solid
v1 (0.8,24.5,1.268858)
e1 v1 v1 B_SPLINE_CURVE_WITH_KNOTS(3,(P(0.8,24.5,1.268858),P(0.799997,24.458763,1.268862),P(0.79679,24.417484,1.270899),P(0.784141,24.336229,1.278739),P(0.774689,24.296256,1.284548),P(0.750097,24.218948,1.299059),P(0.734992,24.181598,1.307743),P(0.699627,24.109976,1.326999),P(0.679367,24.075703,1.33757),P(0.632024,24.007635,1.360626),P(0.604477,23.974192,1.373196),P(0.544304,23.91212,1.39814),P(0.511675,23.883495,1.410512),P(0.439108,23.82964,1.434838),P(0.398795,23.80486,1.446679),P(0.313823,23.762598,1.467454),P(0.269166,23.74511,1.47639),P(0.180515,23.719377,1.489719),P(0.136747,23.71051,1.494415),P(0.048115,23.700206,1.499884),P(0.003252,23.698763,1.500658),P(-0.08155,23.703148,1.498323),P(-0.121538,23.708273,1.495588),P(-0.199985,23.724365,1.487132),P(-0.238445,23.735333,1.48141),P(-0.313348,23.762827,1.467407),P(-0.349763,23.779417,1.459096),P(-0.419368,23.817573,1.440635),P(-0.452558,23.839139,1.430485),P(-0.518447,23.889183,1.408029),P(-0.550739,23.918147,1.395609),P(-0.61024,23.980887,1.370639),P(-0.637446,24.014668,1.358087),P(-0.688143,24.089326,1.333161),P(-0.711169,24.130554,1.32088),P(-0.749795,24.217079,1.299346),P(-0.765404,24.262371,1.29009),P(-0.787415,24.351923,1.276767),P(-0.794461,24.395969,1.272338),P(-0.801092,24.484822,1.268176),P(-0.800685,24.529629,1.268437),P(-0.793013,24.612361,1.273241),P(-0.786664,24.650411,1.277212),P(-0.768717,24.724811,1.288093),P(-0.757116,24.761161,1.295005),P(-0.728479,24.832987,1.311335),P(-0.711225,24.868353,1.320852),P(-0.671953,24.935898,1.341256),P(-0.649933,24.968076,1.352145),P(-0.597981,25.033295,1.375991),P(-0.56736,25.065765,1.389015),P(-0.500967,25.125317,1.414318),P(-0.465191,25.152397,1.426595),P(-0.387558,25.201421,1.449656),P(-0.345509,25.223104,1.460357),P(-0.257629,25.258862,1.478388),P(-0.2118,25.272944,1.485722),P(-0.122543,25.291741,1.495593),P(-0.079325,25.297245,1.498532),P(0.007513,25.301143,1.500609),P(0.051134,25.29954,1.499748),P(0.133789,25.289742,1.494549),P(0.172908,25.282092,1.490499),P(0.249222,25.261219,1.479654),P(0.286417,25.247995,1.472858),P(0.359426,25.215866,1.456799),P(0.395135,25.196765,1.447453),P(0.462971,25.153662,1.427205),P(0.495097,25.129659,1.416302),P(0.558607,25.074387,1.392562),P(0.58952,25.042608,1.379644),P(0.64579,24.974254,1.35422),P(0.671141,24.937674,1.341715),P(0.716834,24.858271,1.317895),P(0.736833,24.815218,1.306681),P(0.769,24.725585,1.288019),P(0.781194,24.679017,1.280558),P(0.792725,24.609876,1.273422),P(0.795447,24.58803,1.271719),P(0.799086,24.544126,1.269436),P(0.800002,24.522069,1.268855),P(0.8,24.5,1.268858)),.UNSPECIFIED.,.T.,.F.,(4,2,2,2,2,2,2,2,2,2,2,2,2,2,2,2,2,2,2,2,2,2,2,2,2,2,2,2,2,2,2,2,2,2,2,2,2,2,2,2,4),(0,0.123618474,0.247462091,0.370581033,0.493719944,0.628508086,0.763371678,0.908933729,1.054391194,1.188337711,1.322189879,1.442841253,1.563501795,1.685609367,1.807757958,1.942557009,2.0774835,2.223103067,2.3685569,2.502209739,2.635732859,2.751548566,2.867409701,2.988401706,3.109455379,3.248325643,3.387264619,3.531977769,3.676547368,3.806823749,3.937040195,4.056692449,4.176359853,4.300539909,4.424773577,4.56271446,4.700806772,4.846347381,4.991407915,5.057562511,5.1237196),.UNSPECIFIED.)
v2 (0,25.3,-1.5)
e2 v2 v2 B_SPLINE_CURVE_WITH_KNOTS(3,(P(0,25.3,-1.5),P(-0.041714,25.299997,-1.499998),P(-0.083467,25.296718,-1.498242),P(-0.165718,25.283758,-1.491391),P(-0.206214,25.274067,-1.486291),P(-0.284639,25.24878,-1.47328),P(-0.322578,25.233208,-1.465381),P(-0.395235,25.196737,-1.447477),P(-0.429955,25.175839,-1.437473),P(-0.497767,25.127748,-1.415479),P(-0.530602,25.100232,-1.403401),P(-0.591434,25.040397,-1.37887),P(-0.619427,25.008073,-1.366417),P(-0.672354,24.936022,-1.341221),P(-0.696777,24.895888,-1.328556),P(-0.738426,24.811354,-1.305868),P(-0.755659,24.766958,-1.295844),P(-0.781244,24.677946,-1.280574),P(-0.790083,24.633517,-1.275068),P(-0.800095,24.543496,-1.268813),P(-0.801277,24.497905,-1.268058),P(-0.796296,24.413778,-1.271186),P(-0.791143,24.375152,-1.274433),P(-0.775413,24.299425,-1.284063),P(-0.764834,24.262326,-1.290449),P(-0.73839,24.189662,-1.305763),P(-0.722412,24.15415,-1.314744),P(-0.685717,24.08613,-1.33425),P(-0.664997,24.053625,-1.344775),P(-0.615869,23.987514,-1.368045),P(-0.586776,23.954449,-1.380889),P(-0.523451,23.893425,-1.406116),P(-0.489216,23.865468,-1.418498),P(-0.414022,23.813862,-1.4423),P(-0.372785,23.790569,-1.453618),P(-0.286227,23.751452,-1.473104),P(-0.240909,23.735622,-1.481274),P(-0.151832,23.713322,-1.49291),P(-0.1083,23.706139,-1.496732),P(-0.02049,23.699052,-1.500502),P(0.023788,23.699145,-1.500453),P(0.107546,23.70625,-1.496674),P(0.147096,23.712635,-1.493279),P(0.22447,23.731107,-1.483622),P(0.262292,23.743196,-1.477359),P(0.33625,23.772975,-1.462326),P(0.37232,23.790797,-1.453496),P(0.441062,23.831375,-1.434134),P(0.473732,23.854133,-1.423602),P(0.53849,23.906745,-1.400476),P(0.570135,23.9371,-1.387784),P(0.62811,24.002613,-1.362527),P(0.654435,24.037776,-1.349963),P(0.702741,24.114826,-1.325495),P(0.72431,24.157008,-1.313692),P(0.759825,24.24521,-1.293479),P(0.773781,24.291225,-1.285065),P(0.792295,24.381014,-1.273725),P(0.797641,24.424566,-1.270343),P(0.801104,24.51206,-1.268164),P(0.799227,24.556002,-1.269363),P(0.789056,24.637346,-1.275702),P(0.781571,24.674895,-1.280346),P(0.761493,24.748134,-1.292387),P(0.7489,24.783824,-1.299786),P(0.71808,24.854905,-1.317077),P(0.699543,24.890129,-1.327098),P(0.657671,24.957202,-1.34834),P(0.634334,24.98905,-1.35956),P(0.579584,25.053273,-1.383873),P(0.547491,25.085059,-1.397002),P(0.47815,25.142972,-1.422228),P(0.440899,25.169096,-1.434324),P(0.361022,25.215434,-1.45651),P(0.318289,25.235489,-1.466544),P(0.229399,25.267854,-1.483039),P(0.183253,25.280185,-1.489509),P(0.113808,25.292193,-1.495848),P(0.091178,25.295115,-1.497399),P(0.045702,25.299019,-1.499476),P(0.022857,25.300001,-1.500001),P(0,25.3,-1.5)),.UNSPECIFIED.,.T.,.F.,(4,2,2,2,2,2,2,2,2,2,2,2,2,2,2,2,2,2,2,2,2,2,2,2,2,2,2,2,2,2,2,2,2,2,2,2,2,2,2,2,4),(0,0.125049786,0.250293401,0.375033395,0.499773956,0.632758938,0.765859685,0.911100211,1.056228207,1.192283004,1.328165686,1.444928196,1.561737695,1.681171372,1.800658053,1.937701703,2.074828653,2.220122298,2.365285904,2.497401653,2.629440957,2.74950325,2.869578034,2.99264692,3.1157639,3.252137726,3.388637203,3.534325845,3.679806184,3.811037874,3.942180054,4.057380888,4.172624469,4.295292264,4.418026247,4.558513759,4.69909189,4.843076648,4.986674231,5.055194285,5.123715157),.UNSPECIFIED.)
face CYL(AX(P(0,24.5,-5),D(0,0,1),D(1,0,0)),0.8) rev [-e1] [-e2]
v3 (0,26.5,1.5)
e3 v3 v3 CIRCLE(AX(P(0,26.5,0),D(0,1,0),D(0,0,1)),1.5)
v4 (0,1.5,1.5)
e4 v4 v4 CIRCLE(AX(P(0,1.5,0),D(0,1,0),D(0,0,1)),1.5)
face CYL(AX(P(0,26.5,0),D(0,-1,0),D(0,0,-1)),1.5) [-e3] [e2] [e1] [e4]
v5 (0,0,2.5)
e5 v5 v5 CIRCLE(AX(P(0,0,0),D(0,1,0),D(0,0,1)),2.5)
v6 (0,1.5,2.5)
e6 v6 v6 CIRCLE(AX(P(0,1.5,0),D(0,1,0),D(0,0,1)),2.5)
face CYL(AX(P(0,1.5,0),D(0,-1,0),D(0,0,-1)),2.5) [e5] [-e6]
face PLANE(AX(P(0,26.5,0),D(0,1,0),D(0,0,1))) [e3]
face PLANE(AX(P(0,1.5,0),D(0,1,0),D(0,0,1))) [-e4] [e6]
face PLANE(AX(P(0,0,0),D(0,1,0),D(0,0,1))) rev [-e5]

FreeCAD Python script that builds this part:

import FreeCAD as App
import Part
import Sketcher
Q = App.Units.Quantity

doc = App.newDocument("Part")
params = doc.addObject("Spreadsheet::Sheet", "Params")
for row, (alias, value) in enumerate([
    ("sketch1_diameter", "5 mm"),
    ("pad1_length", "1.5 mm"),
    ("sketch2_diameter", "3 mm"),
    ("pad2_length", "25 mm"),
    ("sketch3_diameter", "1.6 mm"),
    ("pocket1_length", "10 mm"),
], start=1):
    params.set(f"A{row}", alias)
    params.set(f"B{row}", "=" + value)
    params.setAlias(f"B{row}", alias)

body = doc.addObject("PartDesign::Body", "Body")

# Sketch on XZ plane
sketch1 = doc.addObject("Sketcher::SketchObject", "Sketch")
body.addObject(sketch1)
sketch1.AttachmentSupport = (doc.XZ_Plane, [""])
sketch1.MapMode = "FlatFace"
sketch1.addGeometry(Part.Circle(App.Vector(0, 0, 0), App.Vector(0, 0, 1), 2.5), False)
sketch1.addConstraint([
    Sketcher.Constraint("Coincident", 0, 3, -1, 1),
    Sketcher.Constraint("Diameter", 0, Q("5 mm")),
])
sketch1.setExpression("Constraints[1]", "Params.sketch1_diameter")
pad1 = doc.addObject("PartDesign::Pad", "Pad")
body.addObject(pad1)
pad1.Profile = sketch1
pad1.setExpression("Length", "Params.pad1_length")
pad1.Reversed = True

# Sketch on XZ plane
sketch2 = doc.addObject("Sketcher::SketchObject", "Sketch001")
body.addObject(sketch2)
sketch2.AttachmentSupport = (doc.XZ_Plane, [""])
sketch2.MapMode = "FlatFace"
sketch2.AttachmentOffset = App.Placement(App.Vector(0, 0, -1.5), App.Rotation())
sketch2.addGeometry(Part.Circle(App.Vector(0, 0, 0), App.Vector(0, 0, 1), 1.5), False)
sketch2.addConstraint([
    Sketcher.Constraint("Coincident", 0, 3, -1, 1),
    Sketcher.Constraint("Diameter", 0, Q("3 mm")),
])
sketch2.setExpression("Constraints[1]", "Params.sketch2_diameter")
pad2 = doc.addObject("PartDesign::Pad", "Pad001")
body.addObject(pad2)
pad2.Profile = sketch2
pad2.setExpression("Length", "Params.pad2_length")
pad2.Reversed = True

# Sketch on XY plane
sketch3 = doc.addObject("Sketcher::SketchObject", "Sketch002")
body.addObject(sketch3)
sketch3.AttachmentSupport = (doc.XY_Plane, [""])
sketch3.MapMode = "FlatFace"
sketch3.addGeometry(Part.Circle(App.Vector(0, 24.5, 0), App.Vector(0, 0, 1), 0.8), False)
sketch3.addConstraint([
    Sketcher.Constraint("PointOnObject", 0, 3, -2),
    Sketcher.Constraint("Diameter", 0, Q("1.6 mm")),
    Sketcher.Constraint("DistanceY", -1, 1, 0, 3, Q("24.5 mm")),
])
sketch3.setExpression("Constraints[1]", "Params.sketch3_diameter")
pocket1 = doc.addObject("PartDesign::Pocket", "Pocket")
body.addObject(pocket1)
pocket1.Profile = sketch3
pocket1.setExpression("Length", "Params.pocket1_length")
pocket1.Midplane = True

doc.recompute()
